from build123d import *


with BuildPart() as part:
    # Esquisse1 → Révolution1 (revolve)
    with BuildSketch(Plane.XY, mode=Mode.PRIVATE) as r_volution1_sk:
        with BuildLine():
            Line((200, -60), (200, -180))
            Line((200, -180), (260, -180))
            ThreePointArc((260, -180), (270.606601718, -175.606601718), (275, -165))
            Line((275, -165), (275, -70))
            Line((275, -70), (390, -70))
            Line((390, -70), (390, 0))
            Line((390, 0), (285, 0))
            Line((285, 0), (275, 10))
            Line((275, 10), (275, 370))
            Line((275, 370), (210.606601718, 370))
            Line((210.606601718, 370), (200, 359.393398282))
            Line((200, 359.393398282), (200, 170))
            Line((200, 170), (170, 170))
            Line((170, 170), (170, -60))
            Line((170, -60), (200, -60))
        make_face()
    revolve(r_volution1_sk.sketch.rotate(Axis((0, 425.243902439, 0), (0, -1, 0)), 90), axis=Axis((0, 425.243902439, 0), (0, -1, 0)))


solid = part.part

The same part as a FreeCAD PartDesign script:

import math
import FreeCAD as App
import Part
import Sketcher
from FreeCAD import Vector
Q = App.Units.Quantity

doc = App.newDocument("Part")
params = doc.addObject("Spreadsheet::Sheet", "Params")
for row, (alias, value) in enumerate([
    ("sketch1_radius", "15 mm"),
    ("sketch1_width", "60 mm"),
    ("sketch1_width2", "115 mm"),
    ("sketch1_width3", "105 mm"),
    ("sketch1_width4", "30 mm"),
    ("revolution_angle", "360 deg"),
], start=1):
    params.set(f"A{row}", alias)
    params.set(f"B{row}", "=" + value)
    params.setAlias(f"B{row}", alias)

body = doc.addObject("PartDesign::Body", "Body")

# Sketch on XY plane
sketch1 = doc.addObject("Sketcher::SketchObject", "Sketch")
body.addObject(sketch1)
sketch1.AttachmentSupport = (doc.XY_Plane, [""])
sketch1.MapMode = "FlatFace"
sketch1.addGeometry([
    Part.LineSegment(Vector(200, -60, 0), Vector(200, -180, 0)),  # 0
    Part.LineSegment(Vector(200, -180, 0), Vector(260, -180, 0)),  # 1
    Part.ArcOfCircle(Part.Circle(Vector(260, -165, 0), Vector(0, 0, 1), 15), math.radians(-90), math.radians(0)),  # 2
    Part.LineSegment(Vector(275, -165, 0), Vector(275, -70, 0)),  # 3
    Part.LineSegment(Vector(275, -70, 0), Vector(390, -70, 0)),  # 4
    Part.LineSegment(Vector(390, -70, 0), Vector(390, 0, 0)),  # 5
    Part.LineSegment(Vector(390, 0, 0), Vector(285, 0, 0)),  # 6
    Part.LineSegment(Vector(285, 0, 0), Vector(275, 10, 0)),  # 7
    Part.LineSegment(Vector(275, 10, 0), Vector(275, 370, 0)),  # 8
    Part.LineSegment(Vector(275, 370, 0), Vector(211, 370, 0)),  # 9
    Part.LineSegment(Vector(211, 370, 0), Vector(200, 359, 0)),  # 10
    Part.LineSegment(Vector(200, 359, 0), Vector(200, 170, 0)),  # 11
    Part.LineSegment(Vector(200, 170, 0), Vector(170, 170, 0)),  # 12
    Part.LineSegment(Vector(170, 170, 0), Vector(170, -60, 0)),  # 13
    Part.LineSegment(Vector(170, -60, 0), Vector(200, -60, 0)),  # 14
], False)
sketch1.addConstraint([
    Sketcher.Constraint("Coincident", 0, 2, 1, 1),
    Sketcher.Constraint("Tangent", 1, 2, 2, 1),
    Sketcher.Constraint("Tangent", 2, 2, 3, 1),
    Sketcher.Constraint("Coincident", 3, 2, 4, 1),
    Sketcher.Constraint("Coincident", 4, 2, 5, 1),
    Sketcher.Constraint("Coincident", 5, 2, 6, 1),
    Sketcher.Constraint("Coincident", 6, 2, 7, 1),
    Sketcher.Constraint("Coincident", 7, 2, 8, 1),
    Sketcher.Constraint("Coincident", 8, 2, 9, 1),
    Sketcher.Constraint("Coincident", 9, 2, 10, 1),
    Sketcher.Constraint("Coincident", 10, 2, 11, 1),
    Sketcher.Constraint("Coincident", 11, 2, 12, 1),
    Sketcher.Constraint("Coincident", 12, 2, 13, 1),
    Sketcher.Constraint("Coincident", 13, 2, 14, 1),
    Sketcher.Constraint("Coincident", 14, 2, 0, 1),
    Sketcher.Constraint("Vertical", 0),
    Sketcher.Constraint("Horizontal", 1),
    Sketcher.Constraint("Vertical", 3),
    Sketcher.Constraint("Horizontal", 4),
    Sketcher.Constraint("Vertical", 5),
    Sketcher.Constraint("Horizontal", 6),
    Sketcher.Constraint("Vertical", 8),
    Sketcher.Constraint("Horizontal", 9),
    Sketcher.Constraint("Vertical", 11),
    Sketcher.Constraint("Horizontal", 12),
    Sketcher.Constraint("Vertical", 13),
    Sketcher.Constraint("Horizontal", 14),
    Sketcher.Constraint("PointOnObject", 5, 2, -1),
    Sketcher.Constraint("Perpendicular", 7, 10),
    Sketcher.Constraint("Vertical", 3, 2, 7, 2),
    Sketcher.Constraint("Vertical", 0, 2, 10, 2),
    Sketcher.Constraint("Radius", 2, 15.0),
    Sketcher.Constraint("DistanceX", 1, 1, 1, 2, 60.0),
    Sketcher.Constraint("DistanceX", 4, 1, 4, 2, 115.0),
    Sketcher.Constraint("DistanceX", 6, 2, 6, 1, 105.0),
    Sketcher.Constraint("DistanceX", 12, 2, 12, 1, 30.0),
    Sketcher.Constraint("DistanceY", 0, 2, 0, 1, 120.0),
    Sketcher.Constraint("DistanceY", 3, 1, 3, 2, 95.0),
    Sketcher.Constraint("DistanceY", 5, 1, 5, 2, 70.0),
    Sketcher.Constraint("DistanceY", 8, 1, 8, 2, 360.0),
    Sketcher.Constraint("DistanceY", 13, 2, 13, 1, 230.0),
    Sketcher.Constraint("Angle", 7, Q("135 deg")),
    Sketcher.Constraint("Distance", 10, 15.0),
    Sketcher.Constraint("DistanceX", -1, 1, 2, 3, 260.0),
])
sketch1.setExpression("Constraints[31]", "Params.sketch1_radius")
sketch1.setExpression("Constraints[32]", "Params.sketch1_width")
sketch1.setExpression("Constraints[33]", "Params.sketch1_width2")
sketch1.setExpression("Constraints[34]", "Params.sketch1_width3")
sketch1.setExpression("Constraints[35]", "Params.sketch1_width4")
revolution = doc.addObject("PartDesign::Revolution", "Revolution")
body.addObject(revolution)
revolution.Profile = sketch1
revolution.ReferenceAxis = (sketch1, ["V_Axis"])
revolution.setExpression("Angle", "Params.revolution_angle")

doc.recompute()
